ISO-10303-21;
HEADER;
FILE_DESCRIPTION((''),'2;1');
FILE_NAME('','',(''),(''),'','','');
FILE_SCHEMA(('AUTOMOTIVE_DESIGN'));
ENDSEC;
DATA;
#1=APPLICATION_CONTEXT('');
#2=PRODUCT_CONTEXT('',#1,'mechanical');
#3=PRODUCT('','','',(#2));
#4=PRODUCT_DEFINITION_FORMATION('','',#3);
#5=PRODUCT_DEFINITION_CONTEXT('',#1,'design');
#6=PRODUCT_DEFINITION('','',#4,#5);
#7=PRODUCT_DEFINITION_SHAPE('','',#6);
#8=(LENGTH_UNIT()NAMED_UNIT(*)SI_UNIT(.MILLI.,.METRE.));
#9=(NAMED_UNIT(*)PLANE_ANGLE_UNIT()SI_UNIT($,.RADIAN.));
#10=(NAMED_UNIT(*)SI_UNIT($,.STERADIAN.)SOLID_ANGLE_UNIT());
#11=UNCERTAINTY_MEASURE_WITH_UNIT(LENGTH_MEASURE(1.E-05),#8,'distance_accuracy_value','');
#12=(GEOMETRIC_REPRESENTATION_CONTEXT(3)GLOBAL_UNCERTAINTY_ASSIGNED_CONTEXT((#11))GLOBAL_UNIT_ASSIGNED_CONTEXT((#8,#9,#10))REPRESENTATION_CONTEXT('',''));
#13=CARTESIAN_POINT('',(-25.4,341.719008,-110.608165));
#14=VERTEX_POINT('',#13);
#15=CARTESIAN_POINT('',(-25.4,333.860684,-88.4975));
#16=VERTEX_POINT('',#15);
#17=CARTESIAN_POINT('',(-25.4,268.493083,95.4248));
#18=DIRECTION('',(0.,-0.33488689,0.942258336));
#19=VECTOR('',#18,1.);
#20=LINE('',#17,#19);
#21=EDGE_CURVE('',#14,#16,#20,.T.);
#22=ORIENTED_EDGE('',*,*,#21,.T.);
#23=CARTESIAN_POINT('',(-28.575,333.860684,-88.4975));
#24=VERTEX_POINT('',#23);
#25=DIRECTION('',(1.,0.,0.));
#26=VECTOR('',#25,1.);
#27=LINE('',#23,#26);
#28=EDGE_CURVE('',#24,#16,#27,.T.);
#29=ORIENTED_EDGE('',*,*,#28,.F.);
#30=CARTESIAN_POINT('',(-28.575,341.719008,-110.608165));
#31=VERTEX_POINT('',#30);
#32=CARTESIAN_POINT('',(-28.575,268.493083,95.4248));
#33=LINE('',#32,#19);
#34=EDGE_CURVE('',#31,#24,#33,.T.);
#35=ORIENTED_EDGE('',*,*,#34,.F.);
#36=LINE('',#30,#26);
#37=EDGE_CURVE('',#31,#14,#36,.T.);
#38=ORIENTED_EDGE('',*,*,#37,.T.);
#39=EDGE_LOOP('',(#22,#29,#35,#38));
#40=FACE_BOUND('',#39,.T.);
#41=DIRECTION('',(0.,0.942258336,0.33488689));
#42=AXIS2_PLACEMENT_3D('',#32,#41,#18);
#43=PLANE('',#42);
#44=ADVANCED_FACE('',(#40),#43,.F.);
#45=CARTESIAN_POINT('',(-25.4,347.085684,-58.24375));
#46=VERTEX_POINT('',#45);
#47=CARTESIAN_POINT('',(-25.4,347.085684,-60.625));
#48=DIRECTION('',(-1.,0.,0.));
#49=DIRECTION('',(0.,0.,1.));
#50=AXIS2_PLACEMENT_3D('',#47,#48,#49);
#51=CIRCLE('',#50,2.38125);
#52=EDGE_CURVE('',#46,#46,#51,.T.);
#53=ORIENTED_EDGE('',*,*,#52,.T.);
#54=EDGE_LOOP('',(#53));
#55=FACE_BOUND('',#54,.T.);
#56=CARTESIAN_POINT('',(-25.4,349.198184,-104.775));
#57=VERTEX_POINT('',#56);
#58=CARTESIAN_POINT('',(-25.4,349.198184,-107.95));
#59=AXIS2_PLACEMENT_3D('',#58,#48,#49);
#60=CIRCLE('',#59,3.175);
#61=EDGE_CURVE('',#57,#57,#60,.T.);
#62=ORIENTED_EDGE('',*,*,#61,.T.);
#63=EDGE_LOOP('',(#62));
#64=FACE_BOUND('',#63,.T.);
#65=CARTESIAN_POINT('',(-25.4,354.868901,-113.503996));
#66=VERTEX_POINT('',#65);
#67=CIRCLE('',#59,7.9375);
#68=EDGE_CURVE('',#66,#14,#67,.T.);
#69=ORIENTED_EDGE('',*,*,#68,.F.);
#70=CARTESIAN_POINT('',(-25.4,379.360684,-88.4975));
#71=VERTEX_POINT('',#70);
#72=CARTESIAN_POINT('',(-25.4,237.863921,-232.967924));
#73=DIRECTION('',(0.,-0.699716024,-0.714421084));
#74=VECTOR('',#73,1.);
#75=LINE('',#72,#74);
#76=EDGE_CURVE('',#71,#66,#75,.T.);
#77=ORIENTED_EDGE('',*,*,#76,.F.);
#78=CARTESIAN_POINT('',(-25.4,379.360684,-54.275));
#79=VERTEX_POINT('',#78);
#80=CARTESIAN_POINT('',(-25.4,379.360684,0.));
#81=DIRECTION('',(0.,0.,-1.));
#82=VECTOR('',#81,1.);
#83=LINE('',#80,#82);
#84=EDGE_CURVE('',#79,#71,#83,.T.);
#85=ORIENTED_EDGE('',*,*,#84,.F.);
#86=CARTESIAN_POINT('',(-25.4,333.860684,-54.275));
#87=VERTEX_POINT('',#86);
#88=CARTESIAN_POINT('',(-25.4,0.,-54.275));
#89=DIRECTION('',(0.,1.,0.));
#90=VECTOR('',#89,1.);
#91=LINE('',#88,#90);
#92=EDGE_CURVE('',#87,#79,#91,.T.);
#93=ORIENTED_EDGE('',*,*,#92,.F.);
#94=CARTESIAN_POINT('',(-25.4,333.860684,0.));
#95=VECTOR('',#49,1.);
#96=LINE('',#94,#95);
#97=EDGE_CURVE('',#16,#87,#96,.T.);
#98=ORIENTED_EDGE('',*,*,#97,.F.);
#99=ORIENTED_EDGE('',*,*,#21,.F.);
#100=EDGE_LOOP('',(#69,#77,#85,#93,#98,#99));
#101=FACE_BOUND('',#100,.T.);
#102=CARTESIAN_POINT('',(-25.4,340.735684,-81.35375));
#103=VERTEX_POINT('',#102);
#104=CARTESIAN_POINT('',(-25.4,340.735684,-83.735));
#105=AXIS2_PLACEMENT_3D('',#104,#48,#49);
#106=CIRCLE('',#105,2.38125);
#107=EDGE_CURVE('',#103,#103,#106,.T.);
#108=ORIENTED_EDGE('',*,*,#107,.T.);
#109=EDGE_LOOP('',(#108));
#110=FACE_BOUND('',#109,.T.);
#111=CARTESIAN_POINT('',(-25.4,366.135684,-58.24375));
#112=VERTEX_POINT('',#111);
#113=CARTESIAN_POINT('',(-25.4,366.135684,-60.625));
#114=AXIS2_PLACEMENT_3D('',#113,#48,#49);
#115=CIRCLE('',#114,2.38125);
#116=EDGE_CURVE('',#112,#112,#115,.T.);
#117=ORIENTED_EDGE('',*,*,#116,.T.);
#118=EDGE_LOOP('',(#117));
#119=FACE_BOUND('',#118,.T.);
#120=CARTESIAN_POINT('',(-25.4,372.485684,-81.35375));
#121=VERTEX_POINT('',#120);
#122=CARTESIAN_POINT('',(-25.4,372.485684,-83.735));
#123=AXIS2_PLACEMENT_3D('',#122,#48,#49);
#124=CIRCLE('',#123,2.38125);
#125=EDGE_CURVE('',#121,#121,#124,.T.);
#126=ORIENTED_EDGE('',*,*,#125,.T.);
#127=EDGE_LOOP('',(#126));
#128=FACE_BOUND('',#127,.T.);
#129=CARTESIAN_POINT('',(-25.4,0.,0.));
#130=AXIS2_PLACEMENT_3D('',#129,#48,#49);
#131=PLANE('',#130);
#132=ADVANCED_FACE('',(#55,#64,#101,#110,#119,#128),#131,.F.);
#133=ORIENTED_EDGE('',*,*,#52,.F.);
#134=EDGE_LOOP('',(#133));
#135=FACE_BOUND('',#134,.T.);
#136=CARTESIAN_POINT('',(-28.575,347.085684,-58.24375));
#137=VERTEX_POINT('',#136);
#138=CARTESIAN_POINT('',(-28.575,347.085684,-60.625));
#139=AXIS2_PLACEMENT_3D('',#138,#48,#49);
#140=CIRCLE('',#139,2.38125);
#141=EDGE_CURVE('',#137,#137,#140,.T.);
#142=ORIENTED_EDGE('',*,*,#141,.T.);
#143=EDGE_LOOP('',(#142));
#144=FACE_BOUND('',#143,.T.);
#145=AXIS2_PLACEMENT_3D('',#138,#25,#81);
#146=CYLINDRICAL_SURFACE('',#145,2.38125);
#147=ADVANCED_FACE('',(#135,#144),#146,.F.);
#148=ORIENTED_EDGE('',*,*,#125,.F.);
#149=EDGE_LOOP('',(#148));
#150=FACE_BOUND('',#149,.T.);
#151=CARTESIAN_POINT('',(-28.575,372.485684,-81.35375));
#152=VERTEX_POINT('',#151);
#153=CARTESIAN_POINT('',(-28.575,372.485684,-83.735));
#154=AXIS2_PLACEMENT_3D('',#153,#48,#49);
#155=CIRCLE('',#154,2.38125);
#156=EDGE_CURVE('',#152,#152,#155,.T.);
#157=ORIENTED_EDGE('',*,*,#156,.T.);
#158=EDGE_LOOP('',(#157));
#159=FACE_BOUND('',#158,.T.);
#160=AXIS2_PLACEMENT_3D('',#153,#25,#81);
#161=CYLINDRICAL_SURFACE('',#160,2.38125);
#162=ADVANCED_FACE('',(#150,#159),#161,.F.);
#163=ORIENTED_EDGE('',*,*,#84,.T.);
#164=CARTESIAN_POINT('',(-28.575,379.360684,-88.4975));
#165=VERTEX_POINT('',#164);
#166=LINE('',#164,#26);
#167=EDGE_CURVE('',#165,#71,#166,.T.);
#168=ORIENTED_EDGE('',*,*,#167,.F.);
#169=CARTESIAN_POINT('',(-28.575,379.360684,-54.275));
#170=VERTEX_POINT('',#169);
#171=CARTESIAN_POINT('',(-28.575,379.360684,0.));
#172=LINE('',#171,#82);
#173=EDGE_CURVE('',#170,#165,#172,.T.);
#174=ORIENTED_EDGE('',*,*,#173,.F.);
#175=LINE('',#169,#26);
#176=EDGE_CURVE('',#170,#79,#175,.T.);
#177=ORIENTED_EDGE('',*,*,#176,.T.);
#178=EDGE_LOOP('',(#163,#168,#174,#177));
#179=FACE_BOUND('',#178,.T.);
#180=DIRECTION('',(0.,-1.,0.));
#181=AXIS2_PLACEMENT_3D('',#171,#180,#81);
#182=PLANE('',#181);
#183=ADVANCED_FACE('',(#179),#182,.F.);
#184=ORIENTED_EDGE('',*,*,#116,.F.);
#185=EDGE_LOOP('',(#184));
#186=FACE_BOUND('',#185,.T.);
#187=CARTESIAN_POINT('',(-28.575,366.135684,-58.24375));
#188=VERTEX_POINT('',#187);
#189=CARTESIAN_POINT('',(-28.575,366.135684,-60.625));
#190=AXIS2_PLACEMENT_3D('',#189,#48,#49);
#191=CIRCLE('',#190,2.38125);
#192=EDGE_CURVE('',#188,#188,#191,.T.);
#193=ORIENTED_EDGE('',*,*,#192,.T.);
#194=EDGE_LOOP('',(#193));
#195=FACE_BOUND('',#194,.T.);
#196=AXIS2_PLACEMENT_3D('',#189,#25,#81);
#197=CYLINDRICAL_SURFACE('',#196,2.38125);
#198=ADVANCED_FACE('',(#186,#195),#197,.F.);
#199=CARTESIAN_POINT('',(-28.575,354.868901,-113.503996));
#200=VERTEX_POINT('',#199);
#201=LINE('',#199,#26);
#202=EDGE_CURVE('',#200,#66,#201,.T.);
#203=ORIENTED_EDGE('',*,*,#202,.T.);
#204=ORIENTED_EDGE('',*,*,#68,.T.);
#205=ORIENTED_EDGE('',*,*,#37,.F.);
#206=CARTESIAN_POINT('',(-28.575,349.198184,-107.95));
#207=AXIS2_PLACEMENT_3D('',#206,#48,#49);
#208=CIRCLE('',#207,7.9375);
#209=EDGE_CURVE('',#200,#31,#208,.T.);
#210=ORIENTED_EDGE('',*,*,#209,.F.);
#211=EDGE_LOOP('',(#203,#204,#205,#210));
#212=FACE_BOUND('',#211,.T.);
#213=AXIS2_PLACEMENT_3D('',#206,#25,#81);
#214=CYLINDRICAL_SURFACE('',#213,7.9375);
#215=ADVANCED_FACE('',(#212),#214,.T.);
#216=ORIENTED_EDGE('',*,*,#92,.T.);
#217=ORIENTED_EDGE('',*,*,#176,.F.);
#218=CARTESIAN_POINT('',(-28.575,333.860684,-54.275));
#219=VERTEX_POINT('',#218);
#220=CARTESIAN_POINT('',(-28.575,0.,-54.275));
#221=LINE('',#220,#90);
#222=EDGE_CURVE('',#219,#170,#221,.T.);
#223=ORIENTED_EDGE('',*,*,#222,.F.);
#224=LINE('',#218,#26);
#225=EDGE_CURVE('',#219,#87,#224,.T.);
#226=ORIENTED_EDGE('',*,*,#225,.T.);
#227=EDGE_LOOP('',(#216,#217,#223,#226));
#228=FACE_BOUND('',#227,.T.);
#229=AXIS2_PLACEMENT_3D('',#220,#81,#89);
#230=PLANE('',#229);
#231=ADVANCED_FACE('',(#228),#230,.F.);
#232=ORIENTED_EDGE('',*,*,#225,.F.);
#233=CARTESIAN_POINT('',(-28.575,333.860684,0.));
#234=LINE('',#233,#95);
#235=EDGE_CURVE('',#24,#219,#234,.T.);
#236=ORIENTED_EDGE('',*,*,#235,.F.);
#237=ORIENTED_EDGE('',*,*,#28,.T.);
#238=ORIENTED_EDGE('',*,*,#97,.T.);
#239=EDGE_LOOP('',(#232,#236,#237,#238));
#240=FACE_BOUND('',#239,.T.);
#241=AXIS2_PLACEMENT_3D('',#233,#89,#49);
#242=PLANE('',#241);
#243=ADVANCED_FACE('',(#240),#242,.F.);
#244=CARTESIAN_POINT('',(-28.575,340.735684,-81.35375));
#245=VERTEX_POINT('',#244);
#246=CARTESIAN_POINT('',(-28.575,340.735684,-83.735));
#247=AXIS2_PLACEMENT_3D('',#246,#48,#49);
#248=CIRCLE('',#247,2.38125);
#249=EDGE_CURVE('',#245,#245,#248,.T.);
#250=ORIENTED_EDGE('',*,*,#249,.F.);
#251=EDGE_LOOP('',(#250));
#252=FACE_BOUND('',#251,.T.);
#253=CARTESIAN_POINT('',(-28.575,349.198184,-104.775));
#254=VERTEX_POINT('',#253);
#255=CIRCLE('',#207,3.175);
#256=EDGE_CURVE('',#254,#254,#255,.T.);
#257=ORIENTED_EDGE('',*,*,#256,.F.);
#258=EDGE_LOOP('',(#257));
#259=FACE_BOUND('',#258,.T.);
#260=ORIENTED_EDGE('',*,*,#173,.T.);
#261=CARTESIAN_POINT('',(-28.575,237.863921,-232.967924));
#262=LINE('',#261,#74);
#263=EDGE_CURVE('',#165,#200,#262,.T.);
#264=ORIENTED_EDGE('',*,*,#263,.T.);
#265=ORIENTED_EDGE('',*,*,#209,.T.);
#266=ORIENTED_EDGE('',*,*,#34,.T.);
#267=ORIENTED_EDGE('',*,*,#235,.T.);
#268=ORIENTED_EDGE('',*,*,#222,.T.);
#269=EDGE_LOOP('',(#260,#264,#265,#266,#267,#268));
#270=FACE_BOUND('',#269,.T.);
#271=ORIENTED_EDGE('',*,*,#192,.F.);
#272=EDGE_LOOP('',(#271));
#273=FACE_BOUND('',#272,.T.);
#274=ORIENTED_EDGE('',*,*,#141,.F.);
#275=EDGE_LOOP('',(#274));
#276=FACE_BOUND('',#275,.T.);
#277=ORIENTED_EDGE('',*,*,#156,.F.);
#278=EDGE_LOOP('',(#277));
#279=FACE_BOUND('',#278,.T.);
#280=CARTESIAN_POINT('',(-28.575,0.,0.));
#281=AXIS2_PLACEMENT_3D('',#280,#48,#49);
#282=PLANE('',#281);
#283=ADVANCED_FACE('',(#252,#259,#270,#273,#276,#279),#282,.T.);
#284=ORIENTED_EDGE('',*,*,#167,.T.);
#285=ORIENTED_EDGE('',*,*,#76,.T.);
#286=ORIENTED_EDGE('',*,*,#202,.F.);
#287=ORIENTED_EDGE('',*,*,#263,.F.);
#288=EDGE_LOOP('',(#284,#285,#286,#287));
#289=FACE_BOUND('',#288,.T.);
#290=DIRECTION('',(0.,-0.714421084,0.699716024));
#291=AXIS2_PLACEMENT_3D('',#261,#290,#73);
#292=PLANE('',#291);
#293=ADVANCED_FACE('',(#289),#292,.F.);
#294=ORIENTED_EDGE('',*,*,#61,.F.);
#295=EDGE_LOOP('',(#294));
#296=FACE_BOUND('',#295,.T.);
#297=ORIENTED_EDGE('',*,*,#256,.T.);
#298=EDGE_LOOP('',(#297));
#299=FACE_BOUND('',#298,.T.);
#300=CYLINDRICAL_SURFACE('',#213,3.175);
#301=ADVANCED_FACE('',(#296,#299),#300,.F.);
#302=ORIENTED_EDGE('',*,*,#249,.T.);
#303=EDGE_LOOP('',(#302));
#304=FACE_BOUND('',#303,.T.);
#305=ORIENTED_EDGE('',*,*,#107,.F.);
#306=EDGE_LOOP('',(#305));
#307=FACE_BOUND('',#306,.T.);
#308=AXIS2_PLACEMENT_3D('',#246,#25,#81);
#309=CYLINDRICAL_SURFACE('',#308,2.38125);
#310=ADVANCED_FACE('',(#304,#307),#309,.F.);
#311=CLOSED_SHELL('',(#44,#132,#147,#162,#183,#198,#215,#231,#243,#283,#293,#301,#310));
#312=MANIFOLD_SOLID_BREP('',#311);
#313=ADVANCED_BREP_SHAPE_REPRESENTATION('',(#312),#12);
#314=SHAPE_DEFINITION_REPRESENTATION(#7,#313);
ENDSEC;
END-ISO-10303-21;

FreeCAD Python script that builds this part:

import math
import FreeCAD as App
import Part
import Sketcher
from FreeCAD import Vector
Q = App.Units.Quantity

doc = App.newDocument("Part")
body = doc.addObject("PartDesign::Body", "Body")

sketch1 = body.newObject("Sketcher::SketchObject", "Sketch")
sketch1.AttachmentSupport = (doc.getObject("YZ_Plane"), [""])
sketch1.MapMode = "FlatFace"
sketch1.AttachmentOffset = App.Placement(Vector(0, 0, -1 * 25.4), App.Rotation())
sketch1.addGeometry([
    Part.LineSegment(Vector(379.360684, -88.4975, 0), Vector(354.868901, -113.503996, 0)),
    Part.ArcOfCircle(Part.Circle(Vector(349.198184, -107.95, 0), Vector(0, 0, 1), 7.9375), math.radians(-160.43434), math.radians(-44.404225)),
    Part.LineSegment(Vector(341.719008, -110.608165, 0), Vector(333.860684, -88.4975, 0)),
    Part.LineSegment(Vector(333.860684, -88.4975, 0), Vector(333.860684, -54.275, 0)),
    Part.LineSegment(Vector(333.860684, -54.275, 0), Vector(379.360684, -54.275, 0)),
    Part.LineSegment(Vector(379.360684, -54.275, 0), Vector(379.360684, -88.4975, 0)),
    Part.Circle(Vector(349.198184, -107.95, 0), Vector(0, 0, 1), 3.175),
    Part.Circle(Vector(366.135684, -60.625, 0), Vector(0, 0, 1), 2.38125),
    Part.Circle(Vector(372.485684, -83.735, 0), Vector(0, 0, 1), 2.38125),
    Part.Circle(Vector(340.735684, -83.735, 0), Vector(0, 0, 1), 2.38125),
    Part.Circle(Vector(347.085684, -60.625, 0), Vector(0, 0, 1), 2.38125),
], False)
sketch1.addConstraint([
    Sketcher.Constraint("Tangent", 0, 2, 1, 2),
    Sketcher.Constraint("Tangent", 1, 1, 2, 1),
    Sketcher.Constraint("Coincident", 2, 2, 3, 1),
    Sketcher.Constraint("Coincident", 3, 2, 4, 1),
    Sketcher.Constraint("Coincident", 4, 2, 5, 1),
    Sketcher.Constraint("Coincident", 5, 2, 0, 1),
    Sketcher.Constraint("Vertical", 3),
    Sketcher.Constraint("Horizontal", 4),
    Sketcher.Constraint("Vertical", 5),
    Sketcher.Constraint("Coincident", 6, 3, 1, 3),
    Sketcher.Constraint("Equal", 7, 8),
    Sketcher.Constraint("Equal", 8, 9),
    Sketcher.Constraint("Equal", 9, 10),
    Sketcher.Constraint("Horizontal", 8, 3, 9, 3),
    Sketcher.Constraint("Horizontal", 7, 3, 10, 3),
    Sketcher.Constraint("Horizontal", 2, 2, 5, 2),
    Sketcher.Constraint("Diameter", 6, Q("0.25 in")),
    Sketcher.Constraint("Diameter", 7, Q("0.1875 in")),
    Sketcher.Constraint("Radius", 1, Q("0.3125 in")),
    Sketcher.Constraint("DistanceX", 9, 3, 7, 3, Q("1 in")),
    Sketcher.Constraint("DistanceX", 10, 3, 8, 3, Q("1 in")),
    Sketcher.Constraint("DistanceY", 1, 3, -1, 1, Q("4.25 in")),
    Sketcher.Constraint("DistanceX", 7, 3, 8, 3, Q("0.25 in")),
    Sketcher.Constraint("DistanceY", 10, 3, 3, 2, Q("0.25 in")),
    Sketcher.Constraint("DistanceY", 2, 2, 9, 3, Q("0.1875 in")),
    Sketcher.Constraint("DistanceX", 1, 3, 5, 2, Q("1.1875 in")),
    Sketcher.Constraint("DistanceX", 4, 1, 4, 2, 45.5),
    Sketcher.Constraint("DistanceY", 3, 1, 3, 2, 34.2225),
    Sketcher.Constraint("DistanceY", 7, 3, -1, 1, 60.625),
    Sketcher.Constraint("DistanceX", -1, 1, 0, 2, 354.868901),
    Sketcher.Constraint("DistanceX", 1, 3, 7, 3, 16.9375),
])
pad1 = body.newObject("PartDesign::Pad", "Pad")
pad1.Profile = sketch1
pad1.Length = Q("0.125 in")
pad1.Reversed = True

doc.recompute()
